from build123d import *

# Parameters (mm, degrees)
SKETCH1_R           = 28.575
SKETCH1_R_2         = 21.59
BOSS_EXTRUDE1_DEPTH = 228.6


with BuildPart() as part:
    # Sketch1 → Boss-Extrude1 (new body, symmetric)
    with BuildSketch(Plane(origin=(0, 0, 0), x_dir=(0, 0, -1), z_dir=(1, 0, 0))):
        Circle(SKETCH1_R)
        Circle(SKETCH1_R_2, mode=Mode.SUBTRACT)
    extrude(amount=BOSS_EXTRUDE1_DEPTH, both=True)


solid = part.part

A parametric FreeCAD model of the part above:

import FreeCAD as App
import Part
import Sketcher
Q = App.Units.Quantity

doc = App.newDocument("Part")
body = doc.addObject("PartDesign::Body", "Body")

# Sketch on YZ plane
sketch1 = doc.addObject("Sketcher::SketchObject", "Sketch")
body.addObject(sketch1)
sketch1.AttachmentSupport = (doc.YZ_Plane, [""])
sketch1.MapMode = "FlatFace"
sketch1.addGeometry(Part.Circle(App.Vector(0, 0, 0), App.Vector(0, 0, 1), 29), False)
sketch1.addGeometry(Part.Circle(App.Vector(0, 0, 0), App.Vector(0, 0, 1), 22), False)
sketch1.addConstraint(Sketcher.Constraint("Coincident", 0, 3, -1, 1))
sketch1.addConstraint(Sketcher.Constraint("Coincident", 1, 3, -1, 1))
sketch1.addConstraint(Sketcher.Constraint("Diameter", 1, Q("1.7 in")))
sketch1.addConstraint(Sketcher.Constraint("Diameter", 0, Q("2.25 in")))
pad1 = doc.addObject("PartDesign::Pad", "Pad")
body.addObject(pad1)
pad1.Profile = sketch1
pad1.Length = Q("18 in")
pad1.Midplane = True

doc.recompute()
